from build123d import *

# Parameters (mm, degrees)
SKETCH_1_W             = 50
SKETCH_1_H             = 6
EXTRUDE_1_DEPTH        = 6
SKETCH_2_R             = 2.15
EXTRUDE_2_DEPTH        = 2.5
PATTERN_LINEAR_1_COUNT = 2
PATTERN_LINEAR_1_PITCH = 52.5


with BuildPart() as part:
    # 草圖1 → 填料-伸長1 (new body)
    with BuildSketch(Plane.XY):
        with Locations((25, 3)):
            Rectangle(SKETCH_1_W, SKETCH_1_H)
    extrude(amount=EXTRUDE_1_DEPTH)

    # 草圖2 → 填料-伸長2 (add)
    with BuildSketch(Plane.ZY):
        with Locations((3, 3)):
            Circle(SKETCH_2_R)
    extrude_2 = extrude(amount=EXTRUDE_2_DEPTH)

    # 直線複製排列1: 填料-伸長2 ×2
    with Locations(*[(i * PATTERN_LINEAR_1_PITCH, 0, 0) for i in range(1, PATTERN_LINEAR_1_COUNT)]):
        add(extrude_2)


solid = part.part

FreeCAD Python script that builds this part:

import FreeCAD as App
import Part
import Sketcher

V = App.Vector

doc = App.newDocument("Part")
body = doc.addObject("PartDesign::Body", "Body")

# Sketch on XY plane
sketch1 = body.newObject("Sketcher::SketchObject", "Sketch")
sketch1.AttachmentSupport = (doc.getObject("XY_Plane"), [""])
sketch1.MapMode = "FlatFace"
sketch1.addGeometry(Part.LineSegment(V(0, 6, 0), V(0, 0, 0)), False)
sketch1.addGeometry(Part.LineSegment(V(0, 0, 0), V(50, 0, 0)), False)
sketch1.addGeometry(Part.LineSegment(V(50, 0, 0), V(50, 6, 0)), False)
sketch1.addGeometry(Part.LineSegment(V(50, 6, 0), V(0, 6, 0)), False)
sketch1.addConstraint(Sketcher.Constraint("Coincident", 0, 2, 1, 1))
sketch1.addConstraint(Sketcher.Constraint("Coincident", 1, 2, 2, 1))
sketch1.addConstraint(Sketcher.Constraint("Coincident", 2, 2, 3, 1))
sketch1.addConstraint(Sketcher.Constraint("Coincident", 3, 2, 0, 1))
sketch1.addConstraint(Sketcher.Constraint("Vertical", 0))
sketch1.addConstraint(Sketcher.Constraint("Horizontal", 1))
sketch1.addConstraint(Sketcher.Constraint("Vertical", 2))
sketch1.addConstraint(Sketcher.Constraint("Horizontal", 3))
sketch1.addConstraint(Sketcher.Constraint("Coincident", 0, 2, -1, 1))
sketch1.addConstraint(Sketcher.Constraint("DistanceX", 1, 1, 1, 2, 50.0))
sketch1.addConstraint(Sketcher.Constraint("DistanceY", 0, 2, 0, 1, 6.0))
pad1 = body.newObject("PartDesign::Pad", "Pad")
pad1.Profile = sketch1
pad1.Length = 6

# Sketch on YZ plane
sketch2 = body.newObject("Sketcher::SketchObject", "Sketch001")
sketch2.AttachmentSupport = (doc.getObject("YZ_Plane"), [""])
sketch2.MapMode = "FlatFace"
sketch2.addGeometry(Part.Circle(V(3, 3, 0), V(0, 0, 1), 2.15), False)
sketch2.addConstraint(Sketcher.Constraint("Diameter", 0, 4.3))
sketch2.addConstraint(Sketcher.Constraint("DistanceX", -1, 1, 0, 3, 3.0))
sketch2.addConstraint(Sketcher.Constraint("DistanceY", -1, 1, 0, 3, 3.0))
pad2 = body.newObject("PartDesign::Pad", "Pad001")
pad2.Profile = sketch2
pad2.Length = 2.5
pad2.Reversed = True
doc.recompute()

linearpattern = body.newObject("PartDesign::LinearPattern", "LinearPattern")
linearpattern.Originals = [pad2]
linearpattern.Direction = (doc.getObject("X_Axis"), [""])
linearpattern.Mode = "offset"
linearpattern.Offset = 52.5
linearpattern.Occurrences = 2
body.Tip = linearpattern

doc.recompute()
